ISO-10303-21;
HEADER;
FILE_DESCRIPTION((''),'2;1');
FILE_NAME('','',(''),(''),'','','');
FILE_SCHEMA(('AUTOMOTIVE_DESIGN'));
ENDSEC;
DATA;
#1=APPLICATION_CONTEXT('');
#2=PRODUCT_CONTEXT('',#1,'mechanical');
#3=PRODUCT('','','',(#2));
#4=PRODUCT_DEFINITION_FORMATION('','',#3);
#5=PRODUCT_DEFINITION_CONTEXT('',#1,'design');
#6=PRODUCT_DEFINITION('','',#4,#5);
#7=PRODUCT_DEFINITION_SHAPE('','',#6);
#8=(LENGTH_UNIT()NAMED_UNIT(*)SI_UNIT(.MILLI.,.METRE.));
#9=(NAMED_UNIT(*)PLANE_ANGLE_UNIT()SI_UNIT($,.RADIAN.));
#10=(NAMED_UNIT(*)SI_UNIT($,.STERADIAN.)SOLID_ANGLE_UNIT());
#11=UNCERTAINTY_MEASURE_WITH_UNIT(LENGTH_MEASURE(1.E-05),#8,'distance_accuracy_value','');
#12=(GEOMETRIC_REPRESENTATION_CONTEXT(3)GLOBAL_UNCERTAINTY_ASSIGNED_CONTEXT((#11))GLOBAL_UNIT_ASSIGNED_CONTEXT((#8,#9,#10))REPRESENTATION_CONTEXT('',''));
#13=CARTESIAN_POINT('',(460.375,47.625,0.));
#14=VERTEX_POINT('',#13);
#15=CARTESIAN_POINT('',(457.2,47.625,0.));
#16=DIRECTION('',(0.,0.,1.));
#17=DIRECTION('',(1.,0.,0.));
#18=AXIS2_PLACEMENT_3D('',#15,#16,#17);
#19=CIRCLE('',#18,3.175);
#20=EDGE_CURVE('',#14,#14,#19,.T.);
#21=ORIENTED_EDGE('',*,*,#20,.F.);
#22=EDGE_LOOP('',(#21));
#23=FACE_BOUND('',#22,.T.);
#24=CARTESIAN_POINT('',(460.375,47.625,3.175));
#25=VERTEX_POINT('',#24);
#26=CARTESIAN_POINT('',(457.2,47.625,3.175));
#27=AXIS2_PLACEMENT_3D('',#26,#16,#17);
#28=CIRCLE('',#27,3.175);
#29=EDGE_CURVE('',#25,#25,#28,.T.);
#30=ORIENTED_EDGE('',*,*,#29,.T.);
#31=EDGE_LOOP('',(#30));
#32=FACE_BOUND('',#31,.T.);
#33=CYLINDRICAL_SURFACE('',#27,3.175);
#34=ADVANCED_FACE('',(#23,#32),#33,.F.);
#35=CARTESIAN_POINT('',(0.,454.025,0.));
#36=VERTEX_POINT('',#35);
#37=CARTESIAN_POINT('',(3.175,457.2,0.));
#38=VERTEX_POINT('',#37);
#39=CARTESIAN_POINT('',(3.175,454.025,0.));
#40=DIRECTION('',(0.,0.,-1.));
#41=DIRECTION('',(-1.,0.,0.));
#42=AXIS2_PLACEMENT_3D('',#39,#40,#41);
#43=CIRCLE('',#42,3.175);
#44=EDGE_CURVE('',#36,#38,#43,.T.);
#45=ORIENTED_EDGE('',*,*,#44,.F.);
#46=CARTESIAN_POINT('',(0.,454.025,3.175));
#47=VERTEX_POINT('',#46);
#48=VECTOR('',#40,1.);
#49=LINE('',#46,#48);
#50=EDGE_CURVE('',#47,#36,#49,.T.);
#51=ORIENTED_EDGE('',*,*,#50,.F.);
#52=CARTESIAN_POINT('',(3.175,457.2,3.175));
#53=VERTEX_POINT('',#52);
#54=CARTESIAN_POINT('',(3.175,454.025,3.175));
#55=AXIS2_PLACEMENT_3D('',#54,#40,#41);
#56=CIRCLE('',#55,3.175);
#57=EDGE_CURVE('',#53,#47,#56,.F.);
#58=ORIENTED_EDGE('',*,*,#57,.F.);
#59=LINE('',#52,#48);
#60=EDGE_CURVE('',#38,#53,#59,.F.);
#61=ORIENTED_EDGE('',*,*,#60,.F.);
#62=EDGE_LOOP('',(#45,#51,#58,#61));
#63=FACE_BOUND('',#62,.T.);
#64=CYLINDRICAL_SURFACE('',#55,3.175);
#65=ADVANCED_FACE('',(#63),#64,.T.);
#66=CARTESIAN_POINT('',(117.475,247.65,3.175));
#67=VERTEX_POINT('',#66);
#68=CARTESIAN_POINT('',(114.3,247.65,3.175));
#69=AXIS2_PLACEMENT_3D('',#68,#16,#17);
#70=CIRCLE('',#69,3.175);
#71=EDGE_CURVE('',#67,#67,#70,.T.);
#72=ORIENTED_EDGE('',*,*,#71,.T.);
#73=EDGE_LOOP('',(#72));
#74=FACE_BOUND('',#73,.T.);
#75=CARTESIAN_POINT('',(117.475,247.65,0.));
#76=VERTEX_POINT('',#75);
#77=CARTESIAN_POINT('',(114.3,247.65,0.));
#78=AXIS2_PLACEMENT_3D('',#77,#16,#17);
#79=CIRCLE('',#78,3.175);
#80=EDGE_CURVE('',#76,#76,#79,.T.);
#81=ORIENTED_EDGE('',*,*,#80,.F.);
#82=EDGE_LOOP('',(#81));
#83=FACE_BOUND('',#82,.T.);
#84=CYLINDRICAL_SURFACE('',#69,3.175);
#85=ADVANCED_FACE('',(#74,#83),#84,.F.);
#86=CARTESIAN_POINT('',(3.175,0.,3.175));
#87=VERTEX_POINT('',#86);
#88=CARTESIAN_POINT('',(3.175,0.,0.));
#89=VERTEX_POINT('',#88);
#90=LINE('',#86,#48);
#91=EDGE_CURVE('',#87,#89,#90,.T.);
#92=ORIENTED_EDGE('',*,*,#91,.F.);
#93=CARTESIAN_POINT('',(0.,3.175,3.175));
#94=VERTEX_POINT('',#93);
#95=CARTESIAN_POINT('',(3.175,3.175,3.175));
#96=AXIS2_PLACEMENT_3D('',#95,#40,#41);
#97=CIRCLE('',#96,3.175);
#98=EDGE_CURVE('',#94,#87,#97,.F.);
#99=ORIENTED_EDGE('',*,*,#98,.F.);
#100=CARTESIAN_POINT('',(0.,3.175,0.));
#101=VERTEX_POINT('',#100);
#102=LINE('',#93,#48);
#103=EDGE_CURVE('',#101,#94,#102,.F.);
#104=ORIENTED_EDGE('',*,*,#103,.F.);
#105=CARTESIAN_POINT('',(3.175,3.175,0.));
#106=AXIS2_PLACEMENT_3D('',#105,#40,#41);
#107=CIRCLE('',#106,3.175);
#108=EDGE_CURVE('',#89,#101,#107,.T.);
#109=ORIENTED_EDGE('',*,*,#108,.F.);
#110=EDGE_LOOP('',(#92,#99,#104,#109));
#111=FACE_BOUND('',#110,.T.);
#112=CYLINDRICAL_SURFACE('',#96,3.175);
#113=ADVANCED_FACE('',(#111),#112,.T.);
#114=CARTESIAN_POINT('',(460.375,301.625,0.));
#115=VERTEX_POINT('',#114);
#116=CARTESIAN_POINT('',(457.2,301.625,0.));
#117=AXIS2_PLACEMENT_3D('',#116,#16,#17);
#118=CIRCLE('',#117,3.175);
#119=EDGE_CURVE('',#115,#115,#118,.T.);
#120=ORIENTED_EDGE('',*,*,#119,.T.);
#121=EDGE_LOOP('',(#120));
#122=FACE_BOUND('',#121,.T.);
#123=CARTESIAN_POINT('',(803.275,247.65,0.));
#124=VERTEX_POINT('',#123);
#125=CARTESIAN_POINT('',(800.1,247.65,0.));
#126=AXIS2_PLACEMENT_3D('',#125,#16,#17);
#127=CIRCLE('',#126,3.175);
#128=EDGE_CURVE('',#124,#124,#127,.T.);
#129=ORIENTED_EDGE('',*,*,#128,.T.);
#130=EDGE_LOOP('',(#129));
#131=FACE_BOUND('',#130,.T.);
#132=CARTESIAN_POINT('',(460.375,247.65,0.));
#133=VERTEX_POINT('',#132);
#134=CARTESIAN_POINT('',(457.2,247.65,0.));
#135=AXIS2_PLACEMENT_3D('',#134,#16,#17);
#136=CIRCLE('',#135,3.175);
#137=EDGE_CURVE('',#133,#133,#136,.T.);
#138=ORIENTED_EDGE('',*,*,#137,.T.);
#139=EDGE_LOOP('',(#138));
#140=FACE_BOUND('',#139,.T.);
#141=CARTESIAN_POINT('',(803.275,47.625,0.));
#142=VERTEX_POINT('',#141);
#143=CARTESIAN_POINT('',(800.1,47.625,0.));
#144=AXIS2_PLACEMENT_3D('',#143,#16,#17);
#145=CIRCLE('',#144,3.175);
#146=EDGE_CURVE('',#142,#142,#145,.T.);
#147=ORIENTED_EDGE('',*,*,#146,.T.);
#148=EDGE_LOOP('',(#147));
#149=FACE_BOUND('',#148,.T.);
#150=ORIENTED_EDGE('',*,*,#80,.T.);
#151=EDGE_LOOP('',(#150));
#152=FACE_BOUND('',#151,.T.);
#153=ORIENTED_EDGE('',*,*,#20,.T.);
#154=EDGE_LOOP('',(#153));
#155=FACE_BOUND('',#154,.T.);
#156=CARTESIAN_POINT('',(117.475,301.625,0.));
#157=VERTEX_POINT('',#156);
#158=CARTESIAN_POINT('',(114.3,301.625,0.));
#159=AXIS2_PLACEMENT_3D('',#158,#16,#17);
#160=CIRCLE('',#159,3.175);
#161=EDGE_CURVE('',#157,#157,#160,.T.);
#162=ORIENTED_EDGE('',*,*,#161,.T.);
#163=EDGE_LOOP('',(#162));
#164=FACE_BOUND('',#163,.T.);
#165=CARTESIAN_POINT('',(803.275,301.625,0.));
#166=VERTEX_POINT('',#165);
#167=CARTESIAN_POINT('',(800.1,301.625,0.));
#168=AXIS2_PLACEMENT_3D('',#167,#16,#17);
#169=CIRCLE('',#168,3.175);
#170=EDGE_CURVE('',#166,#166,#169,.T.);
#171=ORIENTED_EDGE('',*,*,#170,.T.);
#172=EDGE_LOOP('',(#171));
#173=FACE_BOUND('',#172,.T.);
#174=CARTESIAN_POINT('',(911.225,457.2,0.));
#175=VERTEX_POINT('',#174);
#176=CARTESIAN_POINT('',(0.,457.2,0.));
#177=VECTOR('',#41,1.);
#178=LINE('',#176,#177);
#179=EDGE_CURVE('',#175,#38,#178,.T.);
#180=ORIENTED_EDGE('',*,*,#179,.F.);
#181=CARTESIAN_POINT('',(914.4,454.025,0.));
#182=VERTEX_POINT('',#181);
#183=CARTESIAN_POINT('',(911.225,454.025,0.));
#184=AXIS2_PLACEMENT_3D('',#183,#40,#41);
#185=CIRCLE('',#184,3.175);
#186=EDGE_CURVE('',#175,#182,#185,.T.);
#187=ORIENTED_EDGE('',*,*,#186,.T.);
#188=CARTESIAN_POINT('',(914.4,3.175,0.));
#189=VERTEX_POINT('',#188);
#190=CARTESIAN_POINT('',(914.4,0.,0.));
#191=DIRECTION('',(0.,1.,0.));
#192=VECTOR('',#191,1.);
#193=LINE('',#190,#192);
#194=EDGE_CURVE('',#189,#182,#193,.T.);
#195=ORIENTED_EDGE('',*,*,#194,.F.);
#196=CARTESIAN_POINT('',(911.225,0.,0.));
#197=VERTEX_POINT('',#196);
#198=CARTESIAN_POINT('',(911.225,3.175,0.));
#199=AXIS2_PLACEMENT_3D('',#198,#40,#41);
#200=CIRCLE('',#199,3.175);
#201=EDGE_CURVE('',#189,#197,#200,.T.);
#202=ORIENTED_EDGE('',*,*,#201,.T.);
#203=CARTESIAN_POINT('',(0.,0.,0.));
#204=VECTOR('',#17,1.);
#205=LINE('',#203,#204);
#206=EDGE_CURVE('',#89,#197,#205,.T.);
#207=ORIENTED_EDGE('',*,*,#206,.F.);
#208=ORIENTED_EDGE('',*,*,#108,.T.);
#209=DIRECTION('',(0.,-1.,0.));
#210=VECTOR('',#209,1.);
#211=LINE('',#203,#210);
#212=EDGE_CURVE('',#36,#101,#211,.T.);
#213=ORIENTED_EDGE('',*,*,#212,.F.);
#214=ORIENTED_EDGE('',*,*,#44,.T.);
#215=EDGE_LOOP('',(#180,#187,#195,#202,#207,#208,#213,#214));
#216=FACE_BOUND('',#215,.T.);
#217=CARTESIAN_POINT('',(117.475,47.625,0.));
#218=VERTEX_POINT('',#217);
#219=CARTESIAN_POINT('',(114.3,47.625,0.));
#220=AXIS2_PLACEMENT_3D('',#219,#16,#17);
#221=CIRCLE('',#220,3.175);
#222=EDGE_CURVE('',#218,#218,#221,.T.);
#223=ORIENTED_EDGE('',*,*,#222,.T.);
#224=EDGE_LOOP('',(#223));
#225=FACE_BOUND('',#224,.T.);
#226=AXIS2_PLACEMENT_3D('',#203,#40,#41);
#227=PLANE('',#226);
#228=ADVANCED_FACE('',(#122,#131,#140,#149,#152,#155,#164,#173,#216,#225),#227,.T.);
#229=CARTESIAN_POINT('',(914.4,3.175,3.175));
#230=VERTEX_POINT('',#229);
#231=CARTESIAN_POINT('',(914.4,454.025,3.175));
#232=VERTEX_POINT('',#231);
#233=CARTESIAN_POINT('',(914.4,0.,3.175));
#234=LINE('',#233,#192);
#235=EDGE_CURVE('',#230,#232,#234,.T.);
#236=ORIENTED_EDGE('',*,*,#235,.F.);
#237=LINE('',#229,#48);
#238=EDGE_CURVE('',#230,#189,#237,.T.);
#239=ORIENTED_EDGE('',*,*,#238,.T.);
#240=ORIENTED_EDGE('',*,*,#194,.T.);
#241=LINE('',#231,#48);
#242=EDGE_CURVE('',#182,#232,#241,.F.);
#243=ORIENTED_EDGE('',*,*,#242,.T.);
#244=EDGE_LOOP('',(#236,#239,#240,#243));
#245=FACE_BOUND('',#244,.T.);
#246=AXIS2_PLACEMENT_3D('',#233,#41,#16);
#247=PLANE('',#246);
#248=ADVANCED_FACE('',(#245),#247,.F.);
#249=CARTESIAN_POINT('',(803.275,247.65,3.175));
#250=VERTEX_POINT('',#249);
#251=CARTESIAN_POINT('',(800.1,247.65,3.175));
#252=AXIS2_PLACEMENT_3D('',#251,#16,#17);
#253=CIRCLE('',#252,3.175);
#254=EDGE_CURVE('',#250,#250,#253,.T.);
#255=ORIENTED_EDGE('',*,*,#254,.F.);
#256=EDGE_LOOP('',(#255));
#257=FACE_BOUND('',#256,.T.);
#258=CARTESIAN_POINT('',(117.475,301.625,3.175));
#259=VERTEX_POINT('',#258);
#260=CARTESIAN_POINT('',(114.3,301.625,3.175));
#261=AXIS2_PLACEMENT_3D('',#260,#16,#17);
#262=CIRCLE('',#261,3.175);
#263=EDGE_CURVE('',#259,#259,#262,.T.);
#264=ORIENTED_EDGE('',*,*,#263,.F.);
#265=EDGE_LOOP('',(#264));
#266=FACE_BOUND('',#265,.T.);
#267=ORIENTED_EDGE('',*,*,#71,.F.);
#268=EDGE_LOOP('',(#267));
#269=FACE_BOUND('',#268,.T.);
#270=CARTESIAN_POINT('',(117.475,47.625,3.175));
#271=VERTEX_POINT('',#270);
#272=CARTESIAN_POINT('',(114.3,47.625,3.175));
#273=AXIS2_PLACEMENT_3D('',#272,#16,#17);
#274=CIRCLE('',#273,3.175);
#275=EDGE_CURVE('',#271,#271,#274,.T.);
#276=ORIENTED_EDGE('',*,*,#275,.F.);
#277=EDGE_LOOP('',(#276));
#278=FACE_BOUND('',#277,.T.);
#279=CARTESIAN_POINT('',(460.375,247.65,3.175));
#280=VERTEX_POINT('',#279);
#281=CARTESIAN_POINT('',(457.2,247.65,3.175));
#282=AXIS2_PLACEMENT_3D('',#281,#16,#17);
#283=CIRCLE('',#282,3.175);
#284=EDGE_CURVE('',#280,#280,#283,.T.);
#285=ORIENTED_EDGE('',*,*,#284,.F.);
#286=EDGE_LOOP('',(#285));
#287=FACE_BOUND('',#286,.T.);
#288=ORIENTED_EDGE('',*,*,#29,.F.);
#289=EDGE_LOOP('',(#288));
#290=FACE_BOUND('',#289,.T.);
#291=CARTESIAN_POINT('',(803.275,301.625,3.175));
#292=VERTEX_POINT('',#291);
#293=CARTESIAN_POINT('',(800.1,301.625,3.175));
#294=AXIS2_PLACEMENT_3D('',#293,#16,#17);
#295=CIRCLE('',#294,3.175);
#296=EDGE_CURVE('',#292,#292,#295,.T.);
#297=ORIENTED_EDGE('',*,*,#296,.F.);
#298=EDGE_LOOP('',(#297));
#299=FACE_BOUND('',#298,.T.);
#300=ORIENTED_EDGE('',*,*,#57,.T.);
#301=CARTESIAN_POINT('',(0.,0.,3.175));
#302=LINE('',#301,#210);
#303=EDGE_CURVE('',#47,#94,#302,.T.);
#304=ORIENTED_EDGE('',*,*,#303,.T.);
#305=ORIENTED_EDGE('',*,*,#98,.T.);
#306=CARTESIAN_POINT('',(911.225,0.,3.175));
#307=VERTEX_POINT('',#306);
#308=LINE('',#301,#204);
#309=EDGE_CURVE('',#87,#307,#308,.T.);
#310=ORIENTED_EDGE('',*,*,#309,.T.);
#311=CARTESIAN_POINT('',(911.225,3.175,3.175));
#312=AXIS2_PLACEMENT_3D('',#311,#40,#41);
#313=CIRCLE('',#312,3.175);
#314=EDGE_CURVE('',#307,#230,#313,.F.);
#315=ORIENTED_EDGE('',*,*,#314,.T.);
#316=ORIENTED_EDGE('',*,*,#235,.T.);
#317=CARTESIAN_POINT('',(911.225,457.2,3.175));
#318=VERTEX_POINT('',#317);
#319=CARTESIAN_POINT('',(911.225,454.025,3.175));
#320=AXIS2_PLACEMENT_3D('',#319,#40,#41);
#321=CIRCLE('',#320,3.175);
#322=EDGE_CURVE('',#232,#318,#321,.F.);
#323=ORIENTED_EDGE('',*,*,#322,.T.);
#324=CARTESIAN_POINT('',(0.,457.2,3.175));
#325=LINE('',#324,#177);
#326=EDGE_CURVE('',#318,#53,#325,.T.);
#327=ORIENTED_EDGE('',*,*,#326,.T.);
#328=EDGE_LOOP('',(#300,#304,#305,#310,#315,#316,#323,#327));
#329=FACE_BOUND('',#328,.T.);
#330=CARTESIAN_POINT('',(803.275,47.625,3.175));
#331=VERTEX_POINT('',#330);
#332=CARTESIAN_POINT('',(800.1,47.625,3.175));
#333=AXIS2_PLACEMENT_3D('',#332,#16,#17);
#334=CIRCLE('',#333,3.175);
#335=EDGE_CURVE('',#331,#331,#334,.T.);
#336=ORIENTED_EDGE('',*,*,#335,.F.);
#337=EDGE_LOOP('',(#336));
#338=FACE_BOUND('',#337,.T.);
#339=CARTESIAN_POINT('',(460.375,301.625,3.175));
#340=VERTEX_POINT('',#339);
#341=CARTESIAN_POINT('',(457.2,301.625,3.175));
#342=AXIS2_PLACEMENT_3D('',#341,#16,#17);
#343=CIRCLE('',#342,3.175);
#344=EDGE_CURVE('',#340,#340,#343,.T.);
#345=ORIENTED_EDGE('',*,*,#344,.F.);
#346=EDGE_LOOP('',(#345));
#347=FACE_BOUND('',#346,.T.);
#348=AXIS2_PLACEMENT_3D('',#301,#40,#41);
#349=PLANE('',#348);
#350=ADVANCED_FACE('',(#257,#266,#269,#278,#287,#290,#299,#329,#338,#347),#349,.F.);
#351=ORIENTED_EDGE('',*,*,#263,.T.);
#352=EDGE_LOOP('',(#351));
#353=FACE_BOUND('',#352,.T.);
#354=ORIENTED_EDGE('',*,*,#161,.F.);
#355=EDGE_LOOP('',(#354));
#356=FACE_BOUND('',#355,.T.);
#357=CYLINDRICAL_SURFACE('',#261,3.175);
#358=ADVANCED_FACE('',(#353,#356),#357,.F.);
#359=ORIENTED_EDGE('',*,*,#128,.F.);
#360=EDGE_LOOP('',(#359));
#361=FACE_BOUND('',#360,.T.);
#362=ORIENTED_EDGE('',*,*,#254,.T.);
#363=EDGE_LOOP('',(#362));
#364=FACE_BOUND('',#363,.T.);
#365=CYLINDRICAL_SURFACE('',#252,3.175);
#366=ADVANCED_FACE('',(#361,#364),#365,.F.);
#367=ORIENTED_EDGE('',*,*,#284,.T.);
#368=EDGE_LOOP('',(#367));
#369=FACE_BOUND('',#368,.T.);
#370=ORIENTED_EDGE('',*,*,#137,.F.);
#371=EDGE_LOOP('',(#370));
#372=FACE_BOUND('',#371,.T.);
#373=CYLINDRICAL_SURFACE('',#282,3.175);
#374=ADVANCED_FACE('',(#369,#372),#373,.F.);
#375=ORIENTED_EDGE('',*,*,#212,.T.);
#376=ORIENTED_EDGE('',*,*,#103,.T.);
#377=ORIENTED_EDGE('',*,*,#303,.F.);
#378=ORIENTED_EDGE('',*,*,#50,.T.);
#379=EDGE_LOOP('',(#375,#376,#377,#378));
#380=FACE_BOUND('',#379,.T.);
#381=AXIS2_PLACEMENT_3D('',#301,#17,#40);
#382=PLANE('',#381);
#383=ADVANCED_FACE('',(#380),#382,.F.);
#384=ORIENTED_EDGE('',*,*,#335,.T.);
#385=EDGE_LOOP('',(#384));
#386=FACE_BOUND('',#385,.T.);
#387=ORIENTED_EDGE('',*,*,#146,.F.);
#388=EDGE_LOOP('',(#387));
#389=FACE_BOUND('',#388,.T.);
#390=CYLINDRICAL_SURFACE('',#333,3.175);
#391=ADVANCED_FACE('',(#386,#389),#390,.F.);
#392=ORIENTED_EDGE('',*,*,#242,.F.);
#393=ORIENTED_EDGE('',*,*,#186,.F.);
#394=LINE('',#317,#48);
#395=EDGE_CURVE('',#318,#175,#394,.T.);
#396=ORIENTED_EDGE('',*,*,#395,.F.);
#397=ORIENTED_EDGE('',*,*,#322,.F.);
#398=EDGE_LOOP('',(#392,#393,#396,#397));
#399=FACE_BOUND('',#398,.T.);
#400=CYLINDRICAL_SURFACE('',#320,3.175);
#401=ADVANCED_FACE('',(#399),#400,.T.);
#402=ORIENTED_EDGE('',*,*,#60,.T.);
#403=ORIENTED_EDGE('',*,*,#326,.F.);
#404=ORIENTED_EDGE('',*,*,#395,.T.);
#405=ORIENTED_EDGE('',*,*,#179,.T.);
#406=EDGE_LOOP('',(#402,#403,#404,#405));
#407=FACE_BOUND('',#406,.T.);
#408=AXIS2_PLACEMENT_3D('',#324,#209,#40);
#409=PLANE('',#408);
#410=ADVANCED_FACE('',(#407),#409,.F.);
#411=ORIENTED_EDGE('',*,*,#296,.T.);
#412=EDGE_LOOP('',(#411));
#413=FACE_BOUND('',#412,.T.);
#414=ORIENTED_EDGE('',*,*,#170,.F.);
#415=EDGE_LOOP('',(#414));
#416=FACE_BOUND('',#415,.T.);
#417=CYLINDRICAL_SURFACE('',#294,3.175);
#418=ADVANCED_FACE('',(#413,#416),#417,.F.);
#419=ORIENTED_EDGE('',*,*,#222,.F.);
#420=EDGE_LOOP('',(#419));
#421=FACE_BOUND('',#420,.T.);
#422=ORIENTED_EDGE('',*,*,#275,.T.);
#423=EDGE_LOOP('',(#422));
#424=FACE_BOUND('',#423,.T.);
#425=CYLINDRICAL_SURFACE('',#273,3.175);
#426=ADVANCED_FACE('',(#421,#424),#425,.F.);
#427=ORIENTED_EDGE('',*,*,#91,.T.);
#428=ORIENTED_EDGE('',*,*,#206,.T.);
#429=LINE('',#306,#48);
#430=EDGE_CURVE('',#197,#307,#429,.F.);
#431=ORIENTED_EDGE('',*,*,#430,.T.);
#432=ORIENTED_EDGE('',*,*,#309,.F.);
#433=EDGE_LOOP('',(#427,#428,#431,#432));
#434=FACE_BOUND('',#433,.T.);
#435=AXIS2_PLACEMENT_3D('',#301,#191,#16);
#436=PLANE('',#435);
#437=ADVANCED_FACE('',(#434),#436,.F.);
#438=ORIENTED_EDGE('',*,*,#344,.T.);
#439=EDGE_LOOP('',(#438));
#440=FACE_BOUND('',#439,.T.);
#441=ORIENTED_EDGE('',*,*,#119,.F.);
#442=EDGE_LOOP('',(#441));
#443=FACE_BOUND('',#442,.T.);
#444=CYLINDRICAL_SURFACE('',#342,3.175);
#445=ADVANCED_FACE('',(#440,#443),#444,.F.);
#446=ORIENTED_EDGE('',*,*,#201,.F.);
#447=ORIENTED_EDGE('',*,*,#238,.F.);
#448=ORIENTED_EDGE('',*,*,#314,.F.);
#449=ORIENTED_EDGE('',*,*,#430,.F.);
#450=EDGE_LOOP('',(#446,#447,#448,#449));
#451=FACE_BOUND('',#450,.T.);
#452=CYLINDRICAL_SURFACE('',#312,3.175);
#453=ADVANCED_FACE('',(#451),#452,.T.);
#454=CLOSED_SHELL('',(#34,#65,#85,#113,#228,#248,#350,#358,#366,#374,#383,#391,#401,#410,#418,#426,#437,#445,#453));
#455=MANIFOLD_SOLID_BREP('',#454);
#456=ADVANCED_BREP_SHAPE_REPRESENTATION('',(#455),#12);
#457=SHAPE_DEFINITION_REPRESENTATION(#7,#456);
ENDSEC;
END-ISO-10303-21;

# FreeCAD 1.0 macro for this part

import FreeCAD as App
import Part
import Sketcher
from FreeCAD import Vector
Q = App.Units.Quantity


def edges_at(feature, points):
    """Names of the edges that pass closest to the given points."""
    edges = feature.Shape.Edges
    near = lambda p: min(range(len(edges)), key=lambda i: edges[i].distToShape(Part.Vertex(*p))[0])
    return sorted({f"Edge{near(p) + 1}" for p in points})


def add_polygon(sketch, points):
    """Adds a closed chain of lines whose ends are joined by coincident constraints."""
    first, n = sketch.GeometryCount, len(points)
    for a, b in zip(points, points[1:] + points[:1]):
        sketch.addGeometry(Part.LineSegment(App.Vector(*a, 0), App.Vector(*b, 0)), False)
    for i in range(n):
        sketch.addConstraint(Sketcher.Constraint("Coincident", first + i, 2, first + (i + 1) % n, 1))

doc = App.newDocument("Part")
params = doc.addObject("Spreadsheet::Sheet", "Params")
for row, (alias, value) in enumerate([
    ("sketch1_width", "36 in"),
    ("sketch1_height", "18 in"),
    ("pad1_length", "0.125 in"),
    ("sketch2_diameter", "0.25 in"),
    ("hole_diameter", "0.25 in"),
    ("fillet_radius", "0.125 in"),
], start=1):
    params.set(f"A{row}", alias)
    params.set(f"B{row}", "=" + value)
    params.setAlias(f"B{row}", alias)

body = doc.addObject("PartDesign::Body", "Body")

sketch1 = body.newObject("Sketcher::SketchObject", "Sketch")
sketch1.AttachmentSupport = (doc.getObject("XY_Plane"), [""])
sketch1.MapMode = "FlatFace"
add_polygon(sketch1, [(0, 457.2), (0, 0), (914.4, 0), (914.4, 457.2)])
sketch1.addConstraint([
    Sketcher.Constraint("Vertical", 0),
    Sketcher.Constraint("Horizontal", 1),
    Sketcher.Constraint("Vertical", 2),
    Sketcher.Constraint("Horizontal", 3),
    Sketcher.Constraint("Coincident", 0, 2, -1, 1),
    Sketcher.Constraint("DistanceX", 1, 1, 1, 2, Q("36 in")),
    Sketcher.Constraint("DistanceY", 0, 2, 0, 1, Q("18 in")),
])
sketch1.setExpression("Constraints[9]", "Params.sketch1_width")
sketch1.setExpression("Constraints[10]", "Params.sketch1_height")
pad1 = body.newObject("PartDesign::Pad", "Pad")
pad1.Profile = sketch1
pad1.setExpression("Length", "Params.pad1_length")

sketch2 = body.newObject("Sketcher::SketchObject", "Sketch001")
sketch2.AttachmentSupport = (doc.getObject("XY_Plane"), [""])
sketch2.MapMode = "FlatFace"
sketch2.AttachmentOffset = App.Placement(Vector(0, 0, 0.125 * 25.4), App.Rotation())
sketch2.addGeometry([
    Part.Circle(Vector(114.3, 247.65, 0), Vector(0, 0, 1), 3.175),
    Part.Circle(Vector(114.3, 301.625, 0), Vector(0, 0, 1), 3.175),
    Part.Circle(Vector(457.2, 301.625, 0), Vector(0, 0, 1), 3.175),
    Part.Circle(Vector(457.2, 247.65, 0), Vector(0, 0, 1), 3.175),
    Part.Circle(Vector(800.1, 247.65, 0), Vector(0, 0, 1), 3.175),
    Part.Circle(Vector(800.1, 301.625, 0), Vector(0, 0, 1), 3.175),
    Part.Circle(Vector(114.3, 47.625, 0), Vector(0, 0, 1), 3.175),
    Part.Circle(Vector(457.2, 47.625, 0), Vector(0, 0, 1), 3.175),
    Part.Circle(Vector(800.1, 47.625, 0), Vector(0, 0, 1), 3.175),
], False)
sketch2.addConstraint([
    Sketcher.Constraint("Equal", 0, 1),
    Sketcher.Constraint("Equal", 1, 2),
    Sketcher.Constraint("Equal", 2, 3),
    Sketcher.Constraint("Equal", 3, 4),
    Sketcher.Constraint("Equal", 4, 5),
    Sketcher.Constraint("Equal", 5, 6),
    Sketcher.Constraint("Equal", 6, 7),
    Sketcher.Constraint("Equal", 7, 8),
    Sketcher.Constraint("Horizontal", 1, 3, 2, 3),
    Sketcher.Constraint("Horizontal", 0, 3, 3, 3),
    Sketcher.Constraint("Horizontal", 3, 3, 4, 3),
    Sketcher.Constraint("Horizontal", 2, 3, 5, 3),
    Sketcher.Constraint("Horizontal", 6, 3, 7, 3),
    Sketcher.Constraint("Horizontal", 7, 3, 8, 3),
    Sketcher.Constraint("Vertical", 0, 3, 1, 3),
    Sketcher.Constraint("Vertical", 2, 3, 3, 3),
    Sketcher.Constraint("Vertical", 4, 3, 5, 3),
    Sketcher.Constraint("Vertical", 1, 3, 6, 3),
    Sketcher.Constraint("Vertical", 3, 3, 7, 3),
    Sketcher.Constraint("Vertical", 5, 3, 8, 3),
    Sketcher.Constraint("Diameter", 0, Q("0.25 in")),
    Sketcher.Constraint("DistanceX", -1, 1, 2, 3, Q("18 in")),
    Sketcher.Constraint("DistanceX", 0, 3, 4, 3, Q("27 in")),
    Sketcher.Constraint("DistanceY", 6, 3, 1, 3, Q("10 in")),
    Sketcher.Constraint("DistanceX", -1, 1, 0, 3, Q("4.5 in")),
    Sketcher.Constraint("DistanceY", -1, 1, 0, 3, Q("9.75 in")),
    Sketcher.Constraint("DistanceY", -1, 1, 1, 3, Q("11.875 in")),
])
sketch2.setExpression("Constraints[20]", "Params.sketch2_diameter")
doc.recompute()
hole = body.newObject("PartDesign::Hole", "Hole")
hole.Profile = sketch2
hole.ThreadType = "None"
hole.setExpression("Diameter", "Params.hole_diameter")
hole.DepthType = "ThroughAll"
doc.recompute()

fillet = body.newObject("PartDesign::Fillet", "Fillet")
fillet.Base = (hole, edges_at(hole, [
    (0, 457.2, 1.587),
    (914.4, 457.2, 1.587),
    (914.4, 0, 1.587),
    (0, 0, 1.587),
]))
fillet.setExpression("Radius", "Params.fillet_radius")

doc.recompute()
